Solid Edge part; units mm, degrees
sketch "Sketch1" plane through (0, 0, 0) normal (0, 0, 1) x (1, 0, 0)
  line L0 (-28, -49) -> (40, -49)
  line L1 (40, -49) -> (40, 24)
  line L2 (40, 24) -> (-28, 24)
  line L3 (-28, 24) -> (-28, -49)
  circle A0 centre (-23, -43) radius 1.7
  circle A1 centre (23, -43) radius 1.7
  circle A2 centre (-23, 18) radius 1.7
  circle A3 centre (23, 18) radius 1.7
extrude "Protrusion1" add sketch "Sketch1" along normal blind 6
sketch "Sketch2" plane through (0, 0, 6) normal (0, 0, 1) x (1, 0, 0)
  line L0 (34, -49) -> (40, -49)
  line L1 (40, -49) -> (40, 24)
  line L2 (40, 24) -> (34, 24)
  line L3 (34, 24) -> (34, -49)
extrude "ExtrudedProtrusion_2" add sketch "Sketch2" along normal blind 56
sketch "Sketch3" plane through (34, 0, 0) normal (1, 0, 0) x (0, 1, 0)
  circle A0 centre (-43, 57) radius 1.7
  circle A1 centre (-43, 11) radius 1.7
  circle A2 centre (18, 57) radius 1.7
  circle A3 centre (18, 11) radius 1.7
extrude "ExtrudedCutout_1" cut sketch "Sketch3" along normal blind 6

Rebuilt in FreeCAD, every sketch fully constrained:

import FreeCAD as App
import Part
import Sketcher

V = App.Vector


def add_polygon(sketch, points):
    """Adds a closed chain of lines whose ends are joined by coincident constraints."""
    first, n = sketch.GeometryCount, len(points)
    for a, b in zip(points, points[1:] + points[:1]):
        sketch.addGeometry(Part.LineSegment(App.Vector(*a, 0), App.Vector(*b, 0)), False)
    for i in range(n):
        sketch.addConstraint(Sketcher.Constraint("Coincident", first + i, 2, first + (i + 1) % n, 1))

doc = App.newDocument("Part")
params = doc.addObject("Spreadsheet::Sheet", "Params")
for row, (alias, value) in enumerate([
    ("sketch1_diameter", "3.4 mm"),
    ("sketch1_width", "68 mm"),
    ("sketch1_height", "73 mm"),
    ("pad1_length", "6 mm"),
    ("sketch2_width", "6 mm"),
    ("sketch2_height", "73 mm"),
    ("pad2_length", "56 mm"),
    ("sketch3_diameter", "3.4 mm"),
    ("pocket1_length", "6 mm"),
], start=1):
    params.set(f"A{row}", alias)
    params.set(f"B{row}", "=" + value)
    params.setAlias(f"B{row}", alias)

body = doc.addObject("PartDesign::Body", "Body")

# Sketch on XY plane
sketch1 = body.newObject("Sketcher::SketchObject", "Sketch")
sketch1.AttachmentSupport = (doc.getObject("XY_Plane"), [""])
sketch1.MapMode = "FlatFace"
add_polygon(sketch1, [(-28, 24), (-28, -49), (40, -49), (40, 24)])  # lines 0-3
sketch1.addGeometry(Part.Circle(V(-23, -43, 0), V(0, 0, 1), 1.7), False)  # 4
sketch1.addGeometry(Part.Circle(V(23, -43, 0), V(0, 0, 1), 1.7), False)  # 5
sketch1.addGeometry(Part.Circle(V(-23, 18, 0), V(0, 0, 1), 1.7), False)  # 6
sketch1.addGeometry(Part.Circle(V(23, 18, 0), V(0, 0, 1), 1.7), False)  # 7
sketch1.addConstraint([
    Sketcher.Constraint("Vertical", 0),
    Sketcher.Constraint("Horizontal", 1),
    Sketcher.Constraint("Vertical", 2),
    Sketcher.Constraint("Horizontal", 3),
    Sketcher.Constraint("Equal", 4, 5),
    Sketcher.Constraint("Equal", 5, 6),
    Sketcher.Constraint("Equal", 6, 7),
    Sketcher.Constraint("Symmetric", 4, 3, 5, 3, -2),
    Sketcher.Constraint("Symmetric", 6, 3, 7, 3, -2),
    Sketcher.Constraint("Vertical", 4, 3, 6, 3),
    Sketcher.Constraint("Diameter", 4, 3.4),
    Sketcher.Constraint("DistanceX", 1, 1, 1, 2, 68.0),
    Sketcher.Constraint("DistanceY", 0, 2, 0, 1, 73.0),
    Sketcher.Constraint("DistanceX", 4, 3, -1, 1, 23.0),
    Sketcher.Constraint("DistanceY", 4, 3, -1, 1, 43.0),
    Sketcher.Constraint("DistanceY", -1, 1, 6, 3, 18.0),
    Sketcher.Constraint("DistanceX", 0, 2, -1, 1, 28.0),
    Sketcher.Constraint("DistanceY", 0, 2, -1, 1, 49.0),
])
sketch1.setExpression("Constraints[14]", "Params.sketch1_diameter")
sketch1.setExpression("Constraints[15]", "Params.sketch1_width")
sketch1.setExpression("Constraints[16]", "Params.sketch1_height")
pad1 = body.newObject("PartDesign::Pad", "Pad")
pad1.Profile = sketch1
pad1.setExpression("Length", "Params.pad1_length")

# Sketch on XY plane
sketch2 = body.newObject("Sketcher::SketchObject", "Sketch001")
sketch2.AttachmentSupport = (doc.getObject("XY_Plane"), [""])
sketch2.MapMode = "FlatFace"
sketch2.AttachmentOffset = App.Placement(V(0, 0, 6), App.Rotation())
add_polygon(sketch2, [(34, 24), (34, -49), (40, -49), (40, 24)])  # lines 0-3
sketch2.addConstraint([
    Sketcher.Constraint("Vertical", 0),
    Sketcher.Constraint("Horizontal", 1),
    Sketcher.Constraint("Vertical", 2),
    Sketcher.Constraint("Horizontal", 3),
    Sketcher.Constraint("DistanceX", 1, 1, 1, 2, 6.0),
    Sketcher.Constraint("DistanceY", 0, 2, 0, 1, 73.0),
    Sketcher.Constraint("DistanceX", -1, 1, 0, 2, 34.0),
    Sketcher.Constraint("DistanceY", 0, 2, -1, 1, 49.0),
])
sketch2.setExpression("Constraints[8]", "Params.sketch2_width")
sketch2.setExpression("Constraints[9]", "Params.sketch2_height")
pad2 = body.newObject("PartDesign::Pad", "Pad001")
pad2.Profile = sketch2
pad2.setExpression("Length", "Params.pad2_length")

# Sketch on YZ plane
sketch3 = body.newObject("Sketcher::SketchObject", "Sketch002")
sketch3.AttachmentSupport = (doc.getObject("YZ_Plane"), [""])
sketch3.MapMode = "FlatFace"
sketch3.AttachmentOffset = App.Placement(V(0, 0, 34), App.Rotation())
sketch3.addGeometry([
    Part.Circle(V(-43, 57, 0), V(0, 0, 1), 1.7),
    Part.Circle(V(-43, 11, 0), V(0, 0, 1), 1.7),
    Part.Circle(V(18, 57, 0), V(0, 0, 1), 1.7),
    Part.Circle(V(18, 11, 0), V(0, 0, 1), 1.7),
], False)
sketch3.addConstraint([
    Sketcher.Constraint("Equal", 0, 1),
    Sketcher.Constraint("Equal", 1, 2),
    Sketcher.Constraint("Equal", 2, 3),
    Sketcher.Constraint("Horizontal", 0, 3, 2, 3),
    Sketcher.Constraint("Horizontal", 1, 3, 3, 3),
    Sketcher.Constraint("Vertical", 0, 3, 1, 3),
    Sketcher.Constraint("Vertical", 2, 3, 3, 3),
    Sketcher.Constraint("Diameter", 0, 3.4),
    Sketcher.Constraint("DistanceX", 0, 3, -1, 1, 43.0),
    Sketcher.Constraint("DistanceY", -1, 1, 0, 3, 57.0),
    Sketcher.Constraint("DistanceY", -1, 1, 1, 3, 11.0),
    Sketcher.Constraint("DistanceX", -1, 1, 2, 3, 18.0),
])
sketch3.setExpression("Constraints[7]", "Params.sketch3_diameter")
pocket1 = body.newObject("PartDesign::Pocket", "Pocket")
pocket1.Profile = sketch3
pocket1.setExpression("Length", "Params.pocket1_length")
pocket1.Reversed = True

doc.recompute()
